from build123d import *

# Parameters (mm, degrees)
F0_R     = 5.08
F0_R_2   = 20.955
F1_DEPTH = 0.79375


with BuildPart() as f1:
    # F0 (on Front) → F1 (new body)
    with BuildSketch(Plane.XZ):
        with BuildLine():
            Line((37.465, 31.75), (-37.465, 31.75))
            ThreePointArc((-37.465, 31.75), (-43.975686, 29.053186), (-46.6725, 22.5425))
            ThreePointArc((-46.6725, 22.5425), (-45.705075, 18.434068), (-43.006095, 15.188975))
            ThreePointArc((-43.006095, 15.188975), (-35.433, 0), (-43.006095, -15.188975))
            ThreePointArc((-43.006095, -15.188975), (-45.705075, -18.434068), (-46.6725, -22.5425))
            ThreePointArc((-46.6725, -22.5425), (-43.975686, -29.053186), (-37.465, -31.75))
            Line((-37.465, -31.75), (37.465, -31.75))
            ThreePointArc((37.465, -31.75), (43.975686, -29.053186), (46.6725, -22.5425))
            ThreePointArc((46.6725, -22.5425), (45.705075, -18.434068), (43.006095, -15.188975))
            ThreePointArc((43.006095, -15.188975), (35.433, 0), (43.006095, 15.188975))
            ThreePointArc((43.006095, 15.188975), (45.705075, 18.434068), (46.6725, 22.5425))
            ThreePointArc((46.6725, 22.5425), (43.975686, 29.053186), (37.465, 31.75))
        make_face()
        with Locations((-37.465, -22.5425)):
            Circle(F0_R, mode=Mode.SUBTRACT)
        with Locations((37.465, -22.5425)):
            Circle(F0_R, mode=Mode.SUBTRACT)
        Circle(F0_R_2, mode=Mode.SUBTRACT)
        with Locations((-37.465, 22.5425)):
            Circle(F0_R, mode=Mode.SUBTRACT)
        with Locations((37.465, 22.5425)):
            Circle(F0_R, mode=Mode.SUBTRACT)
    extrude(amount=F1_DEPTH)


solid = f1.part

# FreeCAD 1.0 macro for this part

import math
import FreeCAD as App
import Part
import Sketcher

V = App.Vector
Q = App.Units.Quantity

doc = App.newDocument("Part")
params = doc.addObject("Spreadsheet::Sheet", "Params")
for row, (alias, value) in enumerate([
    ("sketch1_diameter", "0.4 in"),
    ("sketch1_diameter2", "1.65 in"),
    ("sketch1_width", "2.95 in"),
    ("pad1_length", "0.03125 in"),
], start=1):
    params.set(f"A{row}", alias)
    params.set(f"B{row}", "=" + value)
    params.setAlias(f"B{row}", alias)

body = doc.addObject("PartDesign::Body", "Body")

sketch1 = body.newObject("Sketcher::SketchObject", "Sketch")
sketch1.AttachmentSupport = (doc.getObject("XZ_Plane"), [""])
sketch1.MapMode = "FlatFace"
sketch1.addGeometry([
    Part.LineSegment(V(37, 32, 0), V(-37, 32, 0)),
    Part.ArcOfCircle(Part.Circle(V(-37, 23, 0), V(0, 0, 1), 9), math.radians(90), math.radians(180)),
    Part.ArcOfCircle(Part.Circle(V(-37, 23, 0), V(0, 0, 1), 9), math.radians(-180), math.radians(-127)),
    Part.ArcOfCircle(Part.Circle(V(-54, 0, 0), V(0, 0, 1), 19), math.radians(-53), math.radians(53)),
    Part.ArcOfCircle(Part.Circle(V(-37, -23, 0), V(0, 0, 1), 9), math.radians(127), math.radians(180)),
    Part.ArcOfCircle(Part.Circle(V(-37, -23, 0), V(0, 0, 1), 9), math.radians(180), math.radians(270)),
    Part.LineSegment(V(-37, -32, 0), V(37, -32, 0)),
    Part.ArcOfCircle(Part.Circle(V(37, -23, 0), V(0, 0, 1), 9), math.radians(-90), math.radians(0)),
    Part.ArcOfCircle(Part.Circle(V(37, -23, 0), V(0, 0, 1), 9), math.radians(0), math.radians(53)),
    Part.ArcOfCircle(Part.Circle(V(54, 0, 0), V(0, 0, 1), 19), math.radians(127), math.radians(233)),
    Part.ArcOfCircle(Part.Circle(V(37, 23, 0), V(0, 0, 1), 9), math.radians(-53), math.radians(0)),
    Part.ArcOfCircle(Part.Circle(V(37, 23, 0), V(0, 0, 1), 9), math.radians(0), math.radians(90)),
    Part.Circle(V(-37, -23, 0), V(0, 0, 1), 5),
    Part.Circle(V(37, -23, 0), V(0, 0, 1), 5),
    Part.Circle(V(0, 0, 0), V(0, 0, 1), 21),
    Part.Circle(V(-37, 23, 0), V(0, 0, 1), 5),
    Part.Circle(V(37, 23, 0), V(0, 0, 1), 5),
], False)
sketch1.addConstraint([
    Sketcher.Constraint("Tangent", 0, 2, 1, 1),
    Sketcher.Constraint("Tangent", 1, 2, 2, 1),
    Sketcher.Constraint("Tangent", 2, 2, 3, 2),
    Sketcher.Constraint("Tangent", 3, 1, 4, 1),
    Sketcher.Constraint("Tangent", 4, 2, 5, 1),
    Sketcher.Constraint("Tangent", 5, 2, 6, 1),
    Sketcher.Constraint("Tangent", 6, 2, 7, 1),
    Sketcher.Constraint("Tangent", 7, 2, 8, 1),
    Sketcher.Constraint("Tangent", 8, 2, 9, 2),
    Sketcher.Constraint("Tangent", 9, 1, 10, 1),
    Sketcher.Constraint("Tangent", 10, 2, 11, 1),
    Sketcher.Constraint("Tangent", 11, 2, 0, 1),
    Sketcher.Constraint("Horizontal", 0),
    Sketcher.Constraint("Horizontal", 6),
    Sketcher.Constraint("Coincident", 14, 3, -1, 1),
    Sketcher.Constraint("Coincident", 12, 3, 4, 3),
    Sketcher.Constraint("Coincident", 13, 3, 7, 3),
    Sketcher.Constraint("Coincident", 15, 3, 1, 3),
    Sketcher.Constraint("Coincident", 16, 3, 10, 3),
    Sketcher.Constraint("Equal", 2, 4),
    Sketcher.Constraint("Equal", 1, 5),
    Sketcher.Constraint("Equal", 5, 7),
    Sketcher.Constraint("Equal", 4, 8),
    Sketcher.Constraint("Equal", 3, 9),
    Sketcher.Constraint("Equal", 8, 10),
    Sketcher.Constraint("Equal", 7, 11),
    Sketcher.Constraint("Equal", 12, 13),
    Sketcher.Constraint("Equal", 13, 15),
    Sketcher.Constraint("Equal", 15, 16),
    Sketcher.Constraint("Symmetric", 1, 3, 7, 3, -1, 1),
    Sketcher.Constraint("Symmetric", 4, 2, 10, 2, -1, 1),
    Sketcher.Constraint("Symmetric", 4, 2, 7, 2, -2),
    Sketcher.Constraint("Horizontal", 16, 3, 1, 2),
    Sketcher.Constraint("Horizontal", 13, 3, 4, 2),
    Sketcher.Constraint("Vertical", 1, 3, 12, 3),
    Sketcher.Constraint("Diameter", 12, Q("0.4 in")),
    Sketcher.Constraint("Diameter", 14, Q("1.65 in")),
    Sketcher.Constraint("DistanceX", 0, 2, 0, 1, Q("2.95 in")),
    Sketcher.Constraint("Radius", 1, Q("0.3625 in")),
    Sketcher.Constraint("DistanceY", -1, 1, 0, 2, Q("1.25 in")),
    Sketcher.Constraint("Radius", 3, 19.018428),
])
sketch1.setExpression("Constraints[35]", "Params.sketch1_diameter")
sketch1.setExpression("Constraints[36]", "Params.sketch1_diameter2")
sketch1.setExpression("Constraints[37]", "Params.sketch1_width")
pad1 = body.newObject("PartDesign::Pad", "Pad")
pad1.Profile = sketch1
pad1.setExpression("Length", "Params.pad1_length")

doc.recompute()
